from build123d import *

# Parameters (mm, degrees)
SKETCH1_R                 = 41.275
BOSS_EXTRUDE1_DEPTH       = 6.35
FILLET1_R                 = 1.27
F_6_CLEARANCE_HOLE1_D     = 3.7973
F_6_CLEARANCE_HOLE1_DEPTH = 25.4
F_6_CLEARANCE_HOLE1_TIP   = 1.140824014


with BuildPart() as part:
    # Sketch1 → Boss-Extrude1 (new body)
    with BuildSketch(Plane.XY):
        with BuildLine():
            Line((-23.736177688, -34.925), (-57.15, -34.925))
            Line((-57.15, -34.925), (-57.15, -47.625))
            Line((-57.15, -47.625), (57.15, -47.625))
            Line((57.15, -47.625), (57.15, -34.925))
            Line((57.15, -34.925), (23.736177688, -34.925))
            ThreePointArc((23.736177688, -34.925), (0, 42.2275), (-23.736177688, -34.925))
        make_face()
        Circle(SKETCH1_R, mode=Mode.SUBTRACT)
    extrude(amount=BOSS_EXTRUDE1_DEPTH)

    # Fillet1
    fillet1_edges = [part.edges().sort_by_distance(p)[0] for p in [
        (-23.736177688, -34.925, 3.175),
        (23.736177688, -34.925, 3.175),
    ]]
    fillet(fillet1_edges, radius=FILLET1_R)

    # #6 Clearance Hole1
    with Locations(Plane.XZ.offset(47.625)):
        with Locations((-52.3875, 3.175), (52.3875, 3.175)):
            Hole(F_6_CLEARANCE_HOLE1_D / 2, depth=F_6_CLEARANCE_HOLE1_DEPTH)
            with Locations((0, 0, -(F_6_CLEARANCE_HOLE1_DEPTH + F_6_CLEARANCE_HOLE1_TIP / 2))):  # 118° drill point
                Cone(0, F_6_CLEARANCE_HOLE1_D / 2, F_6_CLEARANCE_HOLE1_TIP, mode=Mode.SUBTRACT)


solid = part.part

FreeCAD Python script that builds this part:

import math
import FreeCAD as App
import Part
import Sketcher
from FreeCAD import Vector
Q = App.Units.Quantity


def edges_at(feature, points):
    """Names of the edges that pass closest to the given points."""
    edges = feature.Shape.Edges
    near = lambda p: min(range(len(edges)), key=lambda i: edges[i].distToShape(Part.Vertex(*p))[0])
    return sorted({f"Edge{near(p) + 1}" for p in points})

doc = App.newDocument("Part")
body = doc.addObject("PartDesign::Body", "Body")

# Sketch on XY plane
sketch1 = body.newObject("Sketcher::SketchObject", "Sketch")
sketch1.AttachmentSupport = (doc.getObject("XY_Plane"), [""])
sketch1.MapMode = "FlatFace"
sketch1.addGeometry(Part.LineSegment(Vector(-24, -35, 0), Vector(-57, -35, 0)), False)
sketch1.addGeometry(Part.LineSegment(Vector(-57, -35, 0), Vector(-57, -48, 0)), False)
sketch1.addGeometry(Part.LineSegment(Vector(-57, -48, 0), Vector(57, -48, 0)), False)
sketch1.addGeometry(Part.LineSegment(Vector(57, -48, 0), Vector(57, -35, 0)), False)
sketch1.addGeometry(Part.LineSegment(Vector(57, -35, 0), Vector(24, -35, 0)), False)
sketch1.addGeometry(Part.ArcOfCircle(Part.Circle(Vector(0, 0, 0), Vector(0, 0, 1), 42), math.radians(-56), math.radians(236)), False)
sketch1.addGeometry(Part.Circle(Vector(0, 0, 0), Vector(0, 0, 1), 41), False)
sketch1.addConstraint(Sketcher.Constraint("Coincident", 0, 2, 1, 1))
sketch1.addConstraint(Sketcher.Constraint("Coincident", 1, 2, 2, 1))
sketch1.addConstraint(Sketcher.Constraint("Coincident", 2, 2, 3, 1))
sketch1.addConstraint(Sketcher.Constraint("Coincident", 3, 2, 4, 1))
sketch1.addConstraint(Sketcher.Constraint("Coincident", 4, 2, 5, 1))
sketch1.addConstraint(Sketcher.Constraint("Coincident", 5, 2, 0, 1))
sketch1.addConstraint(Sketcher.Constraint("Horizontal", 0))
sketch1.addConstraint(Sketcher.Constraint("Vertical", 1))
sketch1.addConstraint(Sketcher.Constraint("Horizontal", 2))
sketch1.addConstraint(Sketcher.Constraint("Vertical", 3))
sketch1.addConstraint(Sketcher.Constraint("Horizontal", 4))
sketch1.addConstraint(Sketcher.Constraint("Coincident", 5, 3, -1, 1))
sketch1.addConstraint(Sketcher.Constraint("Coincident", 6, 3, -1, 1))
sketch1.addConstraint(Sketcher.Constraint("Symmetric", 0, 2, 3, 2, -2))
sketch1.addConstraint(Sketcher.Constraint("Diameter", 6, Q("3.25 in")))
sketch1.addConstraint(Sketcher.Constraint("DistanceX", 2, 1, 2, 2, Q("4.5 in")))
sketch1.addConstraint(Sketcher.Constraint("DistanceY", 1, 2, 1, 1, Q("0.5 in")))
sketch1.addConstraint(Sketcher.Constraint("Radius", 5, Q("1.6625 in")))
sketch1.addConstraint(Sketcher.Constraint("DistanceY", 0, 2, -1, 1, Q("1.375 in")))
pad1 = body.newObject("PartDesign::Pad", "Pad")
pad1.Profile = sketch1
pad1.Length = Q("0.25 in")
doc.recompute()

fillet = body.newObject("PartDesign::Fillet", "Fillet")
fillet.Base = (pad1, edges_at(pad1, [(-23.736, -34.925, 3.175), (23.736, -34.925, 3.175)]))
fillet.Radius = Q("0.05 in")

# Sketch on XZ plane
sketch2 = body.newObject("Sketcher::SketchObject", "Sketch001")
sketch2.AttachmentSupport = (doc.getObject("XZ_Plane"), [""])
sketch2.MapMode = "FlatFace"
sketch2.AttachmentOffset = App.Placement(Vector(0, 0, 1.875 * 25.4), App.Rotation())
sketch2.addGeometry(Part.Circle(Vector(-52.4, 3.2, 0), Vector(0, 0, 1), 1.9), False)
sketch2.addGeometry(Part.Circle(Vector(52.4, 3.2, 0), Vector(0, 0, 1), 1.9), False)
sketch2.addConstraint(Sketcher.Constraint("Equal", 0, 1))
sketch2.addConstraint(Sketcher.Constraint("Symmetric", 0, 3, 1, 3, -2))
sketch2.addConstraint(Sketcher.Constraint("Diameter", 0, Q("0.1495 in")))
sketch2.addConstraint(Sketcher.Constraint("DistanceX", 0, 3, -1, 1, Q("2.0625 in")))
sketch2.addConstraint(Sketcher.Constraint("DistanceY", -1, 1, 0, 3, Q("0.125 in")))
doc.recompute()
hole = body.newObject("PartDesign::Hole", "Hole")
hole.Profile = sketch2
hole.ThreadType = "None"
hole.Diameter = Q("0.1495 in")
hole.DepthType = "Dimension"
hole.Depth = Q("1 in")
hole.DrillPoint = "Angled"
hole.DrillPointAngle = 118

doc.recompute()
